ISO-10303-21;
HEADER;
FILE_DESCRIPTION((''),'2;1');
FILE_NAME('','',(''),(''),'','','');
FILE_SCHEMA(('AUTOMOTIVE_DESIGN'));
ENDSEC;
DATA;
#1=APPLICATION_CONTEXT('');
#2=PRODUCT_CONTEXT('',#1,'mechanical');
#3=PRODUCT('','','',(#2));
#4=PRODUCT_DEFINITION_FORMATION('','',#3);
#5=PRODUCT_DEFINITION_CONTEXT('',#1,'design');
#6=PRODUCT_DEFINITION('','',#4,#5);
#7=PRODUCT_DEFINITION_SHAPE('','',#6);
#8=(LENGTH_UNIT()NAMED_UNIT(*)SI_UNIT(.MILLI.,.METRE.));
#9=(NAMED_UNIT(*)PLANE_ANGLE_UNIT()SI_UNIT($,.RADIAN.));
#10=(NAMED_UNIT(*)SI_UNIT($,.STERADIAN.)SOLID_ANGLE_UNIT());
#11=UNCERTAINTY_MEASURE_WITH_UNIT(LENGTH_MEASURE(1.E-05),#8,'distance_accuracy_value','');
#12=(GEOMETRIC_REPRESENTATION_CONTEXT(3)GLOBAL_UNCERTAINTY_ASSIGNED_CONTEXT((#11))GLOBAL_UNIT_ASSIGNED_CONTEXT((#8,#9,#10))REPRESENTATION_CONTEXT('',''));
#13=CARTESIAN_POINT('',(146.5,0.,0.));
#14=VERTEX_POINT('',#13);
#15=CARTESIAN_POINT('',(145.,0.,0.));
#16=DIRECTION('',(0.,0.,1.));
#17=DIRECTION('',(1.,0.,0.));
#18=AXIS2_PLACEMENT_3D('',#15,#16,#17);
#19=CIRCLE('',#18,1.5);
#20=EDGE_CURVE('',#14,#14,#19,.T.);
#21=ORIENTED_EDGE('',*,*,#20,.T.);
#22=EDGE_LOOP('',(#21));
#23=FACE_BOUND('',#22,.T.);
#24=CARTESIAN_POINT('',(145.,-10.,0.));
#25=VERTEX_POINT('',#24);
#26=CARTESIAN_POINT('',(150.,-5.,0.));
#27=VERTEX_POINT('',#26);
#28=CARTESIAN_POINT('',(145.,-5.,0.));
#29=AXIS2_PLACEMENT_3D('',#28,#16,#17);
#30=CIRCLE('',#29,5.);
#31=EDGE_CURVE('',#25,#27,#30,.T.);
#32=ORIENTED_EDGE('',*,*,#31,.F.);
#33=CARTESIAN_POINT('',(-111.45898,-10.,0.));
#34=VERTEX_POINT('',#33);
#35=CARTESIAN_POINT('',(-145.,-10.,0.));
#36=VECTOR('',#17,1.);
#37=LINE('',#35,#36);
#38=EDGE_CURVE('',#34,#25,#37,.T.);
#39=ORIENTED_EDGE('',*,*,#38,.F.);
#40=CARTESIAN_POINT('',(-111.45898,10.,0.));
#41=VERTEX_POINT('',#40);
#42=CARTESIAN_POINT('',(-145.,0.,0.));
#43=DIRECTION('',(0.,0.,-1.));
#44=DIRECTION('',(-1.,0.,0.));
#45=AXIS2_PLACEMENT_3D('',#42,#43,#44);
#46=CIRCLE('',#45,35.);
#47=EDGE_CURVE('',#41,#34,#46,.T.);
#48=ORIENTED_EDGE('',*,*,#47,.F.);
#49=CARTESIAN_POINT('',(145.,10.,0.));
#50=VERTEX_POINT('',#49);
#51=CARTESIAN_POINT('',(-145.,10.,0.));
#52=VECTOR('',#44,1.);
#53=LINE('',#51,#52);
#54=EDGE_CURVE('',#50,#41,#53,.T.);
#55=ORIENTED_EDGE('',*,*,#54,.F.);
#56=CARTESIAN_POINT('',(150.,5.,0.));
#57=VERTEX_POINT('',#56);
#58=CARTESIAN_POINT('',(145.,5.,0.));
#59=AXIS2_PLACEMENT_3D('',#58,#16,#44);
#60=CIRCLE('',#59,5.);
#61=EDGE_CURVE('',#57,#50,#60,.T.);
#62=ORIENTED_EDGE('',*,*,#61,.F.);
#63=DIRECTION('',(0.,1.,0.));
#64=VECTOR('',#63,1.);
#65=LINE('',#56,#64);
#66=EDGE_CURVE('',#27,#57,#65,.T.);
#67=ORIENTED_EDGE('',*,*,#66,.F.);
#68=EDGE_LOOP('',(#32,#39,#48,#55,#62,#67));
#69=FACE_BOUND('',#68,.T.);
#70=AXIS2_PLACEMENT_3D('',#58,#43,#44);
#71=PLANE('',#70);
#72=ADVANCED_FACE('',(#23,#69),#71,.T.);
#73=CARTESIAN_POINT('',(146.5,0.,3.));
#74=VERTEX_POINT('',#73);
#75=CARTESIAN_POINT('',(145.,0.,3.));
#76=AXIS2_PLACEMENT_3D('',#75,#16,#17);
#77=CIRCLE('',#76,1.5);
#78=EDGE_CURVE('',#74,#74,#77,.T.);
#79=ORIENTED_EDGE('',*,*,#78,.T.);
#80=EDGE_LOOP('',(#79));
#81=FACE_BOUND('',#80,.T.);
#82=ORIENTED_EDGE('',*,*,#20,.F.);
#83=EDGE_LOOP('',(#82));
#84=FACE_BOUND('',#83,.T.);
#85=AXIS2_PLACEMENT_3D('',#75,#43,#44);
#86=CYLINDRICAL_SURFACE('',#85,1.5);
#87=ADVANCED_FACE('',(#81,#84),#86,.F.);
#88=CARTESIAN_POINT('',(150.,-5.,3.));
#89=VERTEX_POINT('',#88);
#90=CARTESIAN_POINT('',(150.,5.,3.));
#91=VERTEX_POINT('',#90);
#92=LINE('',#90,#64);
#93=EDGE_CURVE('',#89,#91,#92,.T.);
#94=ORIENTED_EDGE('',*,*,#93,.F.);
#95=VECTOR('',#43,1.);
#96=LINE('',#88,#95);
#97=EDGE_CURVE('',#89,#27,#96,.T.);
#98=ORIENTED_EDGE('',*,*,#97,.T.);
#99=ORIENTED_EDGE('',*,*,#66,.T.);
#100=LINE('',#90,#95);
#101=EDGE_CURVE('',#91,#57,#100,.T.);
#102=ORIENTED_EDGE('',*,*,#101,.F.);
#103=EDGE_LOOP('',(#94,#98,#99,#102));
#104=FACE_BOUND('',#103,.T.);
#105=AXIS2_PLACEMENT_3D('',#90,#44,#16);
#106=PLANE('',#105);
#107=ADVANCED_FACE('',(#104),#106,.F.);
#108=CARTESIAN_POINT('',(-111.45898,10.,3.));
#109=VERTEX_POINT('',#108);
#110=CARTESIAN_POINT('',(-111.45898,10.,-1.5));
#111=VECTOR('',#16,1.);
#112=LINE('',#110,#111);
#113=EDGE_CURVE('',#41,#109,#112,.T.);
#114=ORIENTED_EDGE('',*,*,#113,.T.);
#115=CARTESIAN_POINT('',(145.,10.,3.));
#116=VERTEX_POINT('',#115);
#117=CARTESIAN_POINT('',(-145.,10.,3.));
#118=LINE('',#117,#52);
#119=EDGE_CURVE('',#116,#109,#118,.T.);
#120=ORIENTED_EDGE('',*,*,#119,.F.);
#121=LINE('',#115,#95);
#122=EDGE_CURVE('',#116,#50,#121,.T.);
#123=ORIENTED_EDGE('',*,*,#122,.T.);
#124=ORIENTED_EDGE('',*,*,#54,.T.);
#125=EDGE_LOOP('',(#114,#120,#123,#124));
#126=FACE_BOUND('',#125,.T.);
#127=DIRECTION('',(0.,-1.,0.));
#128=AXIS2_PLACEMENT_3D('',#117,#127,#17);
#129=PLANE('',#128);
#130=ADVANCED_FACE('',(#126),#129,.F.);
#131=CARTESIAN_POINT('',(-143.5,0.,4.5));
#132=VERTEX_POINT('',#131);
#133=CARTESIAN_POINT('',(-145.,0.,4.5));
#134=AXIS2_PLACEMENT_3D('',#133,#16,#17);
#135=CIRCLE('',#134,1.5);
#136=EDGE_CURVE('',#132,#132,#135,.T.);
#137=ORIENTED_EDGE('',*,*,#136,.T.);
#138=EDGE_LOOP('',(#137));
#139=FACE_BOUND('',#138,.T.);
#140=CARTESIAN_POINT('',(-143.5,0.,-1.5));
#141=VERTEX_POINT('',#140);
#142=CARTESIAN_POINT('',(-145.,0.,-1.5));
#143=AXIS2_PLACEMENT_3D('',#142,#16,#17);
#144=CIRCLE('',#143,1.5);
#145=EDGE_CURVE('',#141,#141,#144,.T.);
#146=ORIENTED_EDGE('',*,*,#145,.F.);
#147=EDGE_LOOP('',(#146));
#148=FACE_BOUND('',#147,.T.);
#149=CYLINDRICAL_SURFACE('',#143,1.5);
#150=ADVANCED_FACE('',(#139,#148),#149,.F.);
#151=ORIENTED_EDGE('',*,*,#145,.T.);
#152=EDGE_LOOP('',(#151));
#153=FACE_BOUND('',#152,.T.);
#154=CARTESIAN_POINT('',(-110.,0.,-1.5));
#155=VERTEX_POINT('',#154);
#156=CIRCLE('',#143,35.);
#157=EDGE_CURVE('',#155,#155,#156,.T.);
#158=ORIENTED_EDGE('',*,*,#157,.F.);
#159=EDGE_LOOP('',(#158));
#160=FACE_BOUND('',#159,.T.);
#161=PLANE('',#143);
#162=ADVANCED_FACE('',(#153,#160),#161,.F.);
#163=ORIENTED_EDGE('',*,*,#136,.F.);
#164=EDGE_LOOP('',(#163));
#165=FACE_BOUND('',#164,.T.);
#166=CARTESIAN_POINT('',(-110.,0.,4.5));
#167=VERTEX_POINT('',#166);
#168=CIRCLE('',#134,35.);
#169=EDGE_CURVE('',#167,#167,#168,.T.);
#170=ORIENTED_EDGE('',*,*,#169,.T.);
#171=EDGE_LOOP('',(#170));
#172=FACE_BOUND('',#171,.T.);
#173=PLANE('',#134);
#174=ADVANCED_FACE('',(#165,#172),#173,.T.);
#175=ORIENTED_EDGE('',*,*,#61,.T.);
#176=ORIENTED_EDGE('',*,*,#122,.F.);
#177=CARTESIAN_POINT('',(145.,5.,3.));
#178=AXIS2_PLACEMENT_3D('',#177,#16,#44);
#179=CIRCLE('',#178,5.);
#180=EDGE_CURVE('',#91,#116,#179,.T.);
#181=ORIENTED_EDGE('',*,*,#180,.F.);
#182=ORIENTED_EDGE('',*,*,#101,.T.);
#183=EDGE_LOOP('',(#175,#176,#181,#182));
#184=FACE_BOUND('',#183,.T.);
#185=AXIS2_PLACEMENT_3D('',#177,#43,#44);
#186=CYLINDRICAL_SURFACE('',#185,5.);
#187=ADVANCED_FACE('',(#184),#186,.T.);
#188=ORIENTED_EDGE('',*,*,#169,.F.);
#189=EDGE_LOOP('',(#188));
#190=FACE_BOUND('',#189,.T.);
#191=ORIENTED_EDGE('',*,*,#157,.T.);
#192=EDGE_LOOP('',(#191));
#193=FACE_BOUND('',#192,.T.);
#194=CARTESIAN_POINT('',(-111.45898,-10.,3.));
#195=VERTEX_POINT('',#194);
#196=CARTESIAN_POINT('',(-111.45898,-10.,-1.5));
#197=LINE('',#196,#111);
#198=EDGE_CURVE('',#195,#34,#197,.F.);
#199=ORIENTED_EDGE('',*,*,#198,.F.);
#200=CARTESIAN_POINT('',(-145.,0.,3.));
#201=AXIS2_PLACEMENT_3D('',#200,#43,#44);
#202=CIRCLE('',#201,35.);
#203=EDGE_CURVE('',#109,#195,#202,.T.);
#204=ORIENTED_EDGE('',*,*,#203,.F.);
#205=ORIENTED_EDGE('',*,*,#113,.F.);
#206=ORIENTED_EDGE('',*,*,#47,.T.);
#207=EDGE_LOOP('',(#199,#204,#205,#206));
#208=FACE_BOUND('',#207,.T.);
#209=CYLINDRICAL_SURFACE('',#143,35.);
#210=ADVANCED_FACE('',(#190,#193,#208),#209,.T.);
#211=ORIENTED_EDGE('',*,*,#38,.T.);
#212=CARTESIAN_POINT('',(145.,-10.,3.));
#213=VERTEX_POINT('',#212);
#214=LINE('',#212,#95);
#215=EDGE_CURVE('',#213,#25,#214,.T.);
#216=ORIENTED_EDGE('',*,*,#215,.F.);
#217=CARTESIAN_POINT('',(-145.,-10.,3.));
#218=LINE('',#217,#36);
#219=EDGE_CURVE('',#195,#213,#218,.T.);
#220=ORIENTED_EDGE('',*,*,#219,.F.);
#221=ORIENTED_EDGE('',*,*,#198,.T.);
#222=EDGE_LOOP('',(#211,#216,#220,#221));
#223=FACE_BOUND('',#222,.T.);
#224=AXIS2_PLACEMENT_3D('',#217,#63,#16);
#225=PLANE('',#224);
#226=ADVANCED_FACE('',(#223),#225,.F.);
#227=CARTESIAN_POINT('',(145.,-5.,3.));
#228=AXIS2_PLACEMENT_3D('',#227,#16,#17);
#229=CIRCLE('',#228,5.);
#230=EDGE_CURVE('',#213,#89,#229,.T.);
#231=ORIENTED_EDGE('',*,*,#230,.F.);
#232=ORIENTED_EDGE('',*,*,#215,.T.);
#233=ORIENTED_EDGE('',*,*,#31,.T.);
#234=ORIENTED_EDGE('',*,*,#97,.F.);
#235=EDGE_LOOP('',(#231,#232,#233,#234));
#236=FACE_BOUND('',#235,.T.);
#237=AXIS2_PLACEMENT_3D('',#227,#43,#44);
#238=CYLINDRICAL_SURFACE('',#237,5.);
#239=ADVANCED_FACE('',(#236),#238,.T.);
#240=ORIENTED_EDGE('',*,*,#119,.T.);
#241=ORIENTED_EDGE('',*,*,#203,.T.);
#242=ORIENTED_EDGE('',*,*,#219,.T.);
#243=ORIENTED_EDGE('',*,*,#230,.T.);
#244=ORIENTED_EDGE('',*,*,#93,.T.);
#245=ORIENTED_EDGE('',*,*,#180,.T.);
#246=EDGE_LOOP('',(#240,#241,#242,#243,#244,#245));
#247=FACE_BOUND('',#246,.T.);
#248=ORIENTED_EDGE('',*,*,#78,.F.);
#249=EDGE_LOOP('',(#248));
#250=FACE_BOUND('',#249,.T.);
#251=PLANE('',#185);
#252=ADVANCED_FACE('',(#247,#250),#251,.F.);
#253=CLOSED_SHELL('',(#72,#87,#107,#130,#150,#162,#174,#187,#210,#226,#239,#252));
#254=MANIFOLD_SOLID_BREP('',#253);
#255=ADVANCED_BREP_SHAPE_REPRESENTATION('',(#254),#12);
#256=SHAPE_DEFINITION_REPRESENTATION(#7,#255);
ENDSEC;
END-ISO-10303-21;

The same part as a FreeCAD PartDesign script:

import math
import FreeCAD as App
import Part
import Sketcher
from FreeCAD import Vector

doc = App.newDocument("Part")
params = doc.addObject("Spreadsheet::Sheet", "Params")
for row, (alias, value) in enumerate([
    ("sketch1_diameter", "3 mm"),
    ("sketch1_radius", "5 mm"),
    ("sketch1_width", "290 mm"),
    ("sketch1_height", "10 mm"),
    ("pad1_length", "3 mm"),
    ("sketch2_diameter", "70 mm"),
    ("pad2_length", "3 mm"),
    ("pad2_length2", "3 mm"),
    ("sketch3_diameter", "3 mm"),
], start=1):
    params.set(f"A{row}", alias)
    params.set(f"B{row}", "=" + value)
    params.setAlias(f"B{row}", alias)

body = doc.addObject("PartDesign::Body", "Body")

# Sketch on XY plane
sketch1 = body.newObject("Sketcher::SketchObject", "Sketch")
sketch1.AttachmentSupport = (doc.getObject("XY_Plane"), [""])
sketch1.MapMode = "FlatFace"
sketch1.addGeometry(Part.LineSegment(Vector(145, 10, 0), Vector(-145, 10, 0)), False)
sketch1.addGeometry(Part.ArcOfCircle(Part.Circle(Vector(-145, 5, 0), Vector(0, 0, 1), 5), math.radians(90), math.radians(180)), False)
sketch1.addGeometry(Part.LineSegment(Vector(-150, 5, 0), Vector(-150, -5, 0)), False)
sketch1.addGeometry(Part.ArcOfCircle(Part.Circle(Vector(-145, -5, 0), Vector(0, 0, 1), 5), math.radians(180), math.radians(270)), False)
sketch1.addGeometry(Part.LineSegment(Vector(-145, -10, 0), Vector(145, -10, 0)), False)
sketch1.addGeometry(Part.ArcOfCircle(Part.Circle(Vector(145, -5, 0), Vector(0, 0, 1), 5), math.radians(-90), math.radians(0)), False)
sketch1.addGeometry(Part.LineSegment(Vector(150, -5, 0), Vector(150, 5, 0)), False)
sketch1.addGeometry(Part.ArcOfCircle(Part.Circle(Vector(145, 5, 0), Vector(0, 0, 1), 5), math.radians(0), math.radians(90)), False)
sketch1.addGeometry(Part.Circle(Vector(145, 0, 0), Vector(0, 0, 1), 1.5), False)
sketch1.addConstraint(Sketcher.Constraint("Tangent", 0, 2, 1, 1))
sketch1.addConstraint(Sketcher.Constraint("Tangent", 1, 2, 2, 1))
sketch1.addConstraint(Sketcher.Constraint("Tangent", 2, 2, 3, 1))
sketch1.addConstraint(Sketcher.Constraint("Tangent", 3, 2, 4, 1))
sketch1.addConstraint(Sketcher.Constraint("Tangent", 4, 2, 5, 1))
sketch1.addConstraint(Sketcher.Constraint("Tangent", 5, 2, 6, 1))
sketch1.addConstraint(Sketcher.Constraint("Tangent", 6, 2, 7, 1))
sketch1.addConstraint(Sketcher.Constraint("Tangent", 7, 2, 0, 1))
sketch1.addConstraint(Sketcher.Constraint("Horizontal", 0))
sketch1.addConstraint(Sketcher.Constraint("Vertical", 2))
sketch1.addConstraint(Sketcher.Constraint("Horizontal", 4))
sketch1.addConstraint(Sketcher.Constraint("Vertical", 6))
sketch1.addConstraint(Sketcher.Constraint("Equal", 1, 3))
sketch1.addConstraint(Sketcher.Constraint("Equal", 3, 5))
sketch1.addConstraint(Sketcher.Constraint("Equal", 5, 7))
sketch1.addConstraint(Sketcher.Constraint("Symmetric", 1, 3, 5, 3, -1, 1))
sketch1.addConstraint(Sketcher.Constraint("PointOnObject", 8, 3, -1))
sketch1.addConstraint(Sketcher.Constraint("Vertical", 7, 3, 8, 3))
sketch1.addConstraint(Sketcher.Constraint("Diameter", 8, 3.0))
sketch1.addConstraint(Sketcher.Constraint("Radius", 1, 5.0))
sketch1.addConstraint(Sketcher.Constraint("DistanceX", 0, 2, 0, 1, 290.0))
sketch1.addConstraint(Sketcher.Constraint("DistanceY", 2, 2, 2, 1, 10.0))
sketch1.setExpression("Constraints[18]", "Params.sketch1_diameter")
sketch1.setExpression("Constraints[19]", "Params.sketch1_radius")
sketch1.setExpression("Constraints[20]", "Params.sketch1_width")
sketch1.setExpression("Constraints[21]", "Params.sketch1_height")
pad1 = body.newObject("PartDesign::Pad", "Pad")
pad1.Profile = sketch1
pad1.setExpression("Length", "Params.pad1_length")

# Sketch on XY plane
sketch2 = body.newObject("Sketcher::SketchObject", "Sketch001")
sketch2.AttachmentSupport = (doc.getObject("XY_Plane"), [""])
sketch2.MapMode = "FlatFace"
sketch2.AttachmentOffset = App.Placement(Vector(0, 0, 1.5), App.Rotation())
sketch2.addGeometry(Part.Circle(Vector(-145, 0, 0), Vector(0, 0, 1), 35), False)
sketch2.addConstraint(Sketcher.Constraint("PointOnObject", 0, 3, -1))
sketch2.addConstraint(Sketcher.Constraint("Diameter", 0, 70.0))
sketch2.addConstraint(Sketcher.Constraint("DistanceX", 0, 3, -1, 1, 145.0))
sketch2.setExpression("Constraints[1]", "Params.sketch2_diameter")
pad2 = body.newObject("PartDesign::Pad", "Pad001")
pad2.Profile = sketch2
pad2.Type = "TwoLengths"
pad2.setExpression("Length", "Params.pad2_length")
pad2.setExpression("Length2", "Params.pad2_length2")

# Sketch on XY plane
sketch3 = body.newObject("Sketcher::SketchObject", "Sketch002")
sketch3.AttachmentSupport = (doc.getObject("XY_Plane"), [""])
sketch3.MapMode = "FlatFace"
sketch3.AttachmentOffset = App.Placement(Vector(0, 0, 4.5), App.Rotation())
sketch3.addGeometry(Part.Circle(Vector(-145, 0, 0), Vector(0, 0, 1), 1.5), False)
sketch3.addConstraint(Sketcher.Constraint("PointOnObject", 0, 3, -1))
sketch3.addConstraint(Sketcher.Constraint("Diameter", 0, 3.0))
sketch3.addConstraint(Sketcher.Constraint("DistanceX", 0, 3, -1, 1, 145.0))
sketch3.setExpression("Constraints[1]", "Params.sketch3_diameter")
pocket1 = body.newObject("PartDesign::Pocket", "Pocket")
pocket1.Profile = sketch3
pocket1.Type = "ThroughAll"

doc.recompute()
